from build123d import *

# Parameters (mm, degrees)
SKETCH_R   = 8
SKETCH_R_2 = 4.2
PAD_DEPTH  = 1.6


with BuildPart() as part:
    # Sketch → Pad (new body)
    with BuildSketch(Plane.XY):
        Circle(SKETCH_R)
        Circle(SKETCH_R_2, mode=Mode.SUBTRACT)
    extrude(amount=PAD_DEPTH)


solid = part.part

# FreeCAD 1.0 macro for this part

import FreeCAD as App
import Part
import Sketcher

doc = App.newDocument("Part")
body = doc.addObject("PartDesign::Body", "Body")

# Sketch on XY plane
sketch1 = body.newObject("Sketcher::SketchObject", "Sketch")
sketch1.AttachmentSupport = (doc.getObject("XY_Plane"), [""])
sketch1.MapMode = "FlatFace"
sketch1.addGeometry([
    Part.Circle(App.Vector(0, 0, 0), App.Vector(0, 0, 1), 8),
    Part.Circle(App.Vector(0, 0, 0), App.Vector(0, 0, 1), 4.2),
], False)
sketch1.addConstraint([
    Sketcher.Constraint("Coincident", 0, 3, -1, 1),
    Sketcher.Constraint("Coincident", 1, 3, -1, 1),
    Sketcher.Constraint("Diameter", 0, 16.0),
    Sketcher.Constraint("Diameter", 1, 8.4),
])
pad1 = body.newObject("PartDesign::Pad", "Pad")
pad1.Profile = sketch1
pad1.Length = 1.6

doc.recompute()
